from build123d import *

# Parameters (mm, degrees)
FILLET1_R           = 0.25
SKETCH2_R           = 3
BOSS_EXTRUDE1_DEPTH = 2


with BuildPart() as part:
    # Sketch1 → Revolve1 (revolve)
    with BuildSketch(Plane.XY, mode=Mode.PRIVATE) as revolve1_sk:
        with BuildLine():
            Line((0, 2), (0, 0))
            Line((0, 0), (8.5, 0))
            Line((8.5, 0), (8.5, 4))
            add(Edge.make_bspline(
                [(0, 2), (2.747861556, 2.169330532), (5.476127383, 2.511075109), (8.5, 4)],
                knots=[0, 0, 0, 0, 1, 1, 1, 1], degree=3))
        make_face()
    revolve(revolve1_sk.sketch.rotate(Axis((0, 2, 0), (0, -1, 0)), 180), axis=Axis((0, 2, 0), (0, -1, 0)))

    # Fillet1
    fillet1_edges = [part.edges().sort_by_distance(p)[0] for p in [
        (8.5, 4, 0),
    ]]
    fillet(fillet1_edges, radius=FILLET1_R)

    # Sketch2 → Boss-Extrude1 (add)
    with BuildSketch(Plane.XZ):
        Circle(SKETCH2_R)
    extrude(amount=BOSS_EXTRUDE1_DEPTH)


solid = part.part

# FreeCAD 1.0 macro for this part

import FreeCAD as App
import Part
import Sketcher


def edges_at(feature, points):
    """Names of the edges that pass closest to the given points."""
    edges = feature.Shape.Edges
    near = lambda p: min(range(len(edges)), key=lambda i: edges[i].distToShape(Part.Vertex(*p))[0])
    return sorted({f"Edge{near(p) + 1}" for p in points})

doc = App.newDocument("Part")
body = doc.addObject("PartDesign::Body", "Body")

sketch1 = body.newObject("Sketcher::SketchObject", "Sketch")
sketch1.AttachmentSupport = (doc.getObject("XY_Plane"), [""])
sketch1.MapMode = "FlatFace"
sketch1.addGeometry(Part.LineSegment(App.Vector(0, 2, 0), App.Vector(0, 0, 0)), False)
sketch1.addGeometry(Part.LineSegment(App.Vector(0, 0, 0), App.Vector(8.5, 0, 0)), False)
sketch1.addGeometry(Part.LineSegment(App.Vector(8.5, 0, 0), App.Vector(8.5, 4, 0)), False)
sketch1.addGeometry(Part.BSplineCurve([App.Vector(0, 2, 0), App.Vector(2.747862, 2.169331, 0), App.Vector(5.476127, 2.511075, 0), App.Vector(8.5, 4, 0)], [4, 4], [0, 1], False, 3, [1, 1, 1, 1], False), False)
sketch1.addConstraint(Sketcher.Constraint("Block", 3))
sketch1.addConstraint(Sketcher.Constraint("Coincident", 0, 2, 1, 1))
sketch1.addConstraint(Sketcher.Constraint("Coincident", 1, 2, 2, 1))
sketch1.addConstraint(Sketcher.Constraint("Coincident", 2, 2, 3, 2))
sketch1.addConstraint(Sketcher.Constraint("Coincident", 3, 1, 0, 1))
sketch1.addConstraint(Sketcher.Constraint("Vertical", 0))
sketch1.addConstraint(Sketcher.Constraint("Horizontal", 1))
sketch1.addConstraint(Sketcher.Constraint("Vertical", 2))
sketch1.addConstraint(Sketcher.Constraint("PointOnObject", 1, 2, -1))
revolution = body.newObject("PartDesign::Revolution", "Revolution")
revolution.Profile = sketch1
revolution.ReferenceAxis = (sketch1, ["V_Axis"])
revolution.Angle = 360
doc.recompute()

fillet = body.newObject("PartDesign::Fillet", "Fillet")
fillet.Base = (revolution, edges_at(revolution, [(8.5, 4, 0)]))
fillet.Radius = 0.25

sketch2 = body.newObject("Sketcher::SketchObject", "Sketch001")
sketch2.AttachmentSupport = (doc.getObject("XZ_Plane"), [""])
sketch2.MapMode = "FlatFace"
sketch2.addGeometry(Part.Circle(App.Vector(0, 0, 0), App.Vector(0, 0, 1), 3), False)
sketch2.addConstraint(Sketcher.Constraint("Coincident", 0, 3, -1, 1))
sketch2.addConstraint(Sketcher.Constraint("Diameter", 0, 6.0))
pad1 = body.newObject("PartDesign::Pad", "Pad")
pad1.Profile = sketch2
pad1.Length = 2

doc.recompute()
